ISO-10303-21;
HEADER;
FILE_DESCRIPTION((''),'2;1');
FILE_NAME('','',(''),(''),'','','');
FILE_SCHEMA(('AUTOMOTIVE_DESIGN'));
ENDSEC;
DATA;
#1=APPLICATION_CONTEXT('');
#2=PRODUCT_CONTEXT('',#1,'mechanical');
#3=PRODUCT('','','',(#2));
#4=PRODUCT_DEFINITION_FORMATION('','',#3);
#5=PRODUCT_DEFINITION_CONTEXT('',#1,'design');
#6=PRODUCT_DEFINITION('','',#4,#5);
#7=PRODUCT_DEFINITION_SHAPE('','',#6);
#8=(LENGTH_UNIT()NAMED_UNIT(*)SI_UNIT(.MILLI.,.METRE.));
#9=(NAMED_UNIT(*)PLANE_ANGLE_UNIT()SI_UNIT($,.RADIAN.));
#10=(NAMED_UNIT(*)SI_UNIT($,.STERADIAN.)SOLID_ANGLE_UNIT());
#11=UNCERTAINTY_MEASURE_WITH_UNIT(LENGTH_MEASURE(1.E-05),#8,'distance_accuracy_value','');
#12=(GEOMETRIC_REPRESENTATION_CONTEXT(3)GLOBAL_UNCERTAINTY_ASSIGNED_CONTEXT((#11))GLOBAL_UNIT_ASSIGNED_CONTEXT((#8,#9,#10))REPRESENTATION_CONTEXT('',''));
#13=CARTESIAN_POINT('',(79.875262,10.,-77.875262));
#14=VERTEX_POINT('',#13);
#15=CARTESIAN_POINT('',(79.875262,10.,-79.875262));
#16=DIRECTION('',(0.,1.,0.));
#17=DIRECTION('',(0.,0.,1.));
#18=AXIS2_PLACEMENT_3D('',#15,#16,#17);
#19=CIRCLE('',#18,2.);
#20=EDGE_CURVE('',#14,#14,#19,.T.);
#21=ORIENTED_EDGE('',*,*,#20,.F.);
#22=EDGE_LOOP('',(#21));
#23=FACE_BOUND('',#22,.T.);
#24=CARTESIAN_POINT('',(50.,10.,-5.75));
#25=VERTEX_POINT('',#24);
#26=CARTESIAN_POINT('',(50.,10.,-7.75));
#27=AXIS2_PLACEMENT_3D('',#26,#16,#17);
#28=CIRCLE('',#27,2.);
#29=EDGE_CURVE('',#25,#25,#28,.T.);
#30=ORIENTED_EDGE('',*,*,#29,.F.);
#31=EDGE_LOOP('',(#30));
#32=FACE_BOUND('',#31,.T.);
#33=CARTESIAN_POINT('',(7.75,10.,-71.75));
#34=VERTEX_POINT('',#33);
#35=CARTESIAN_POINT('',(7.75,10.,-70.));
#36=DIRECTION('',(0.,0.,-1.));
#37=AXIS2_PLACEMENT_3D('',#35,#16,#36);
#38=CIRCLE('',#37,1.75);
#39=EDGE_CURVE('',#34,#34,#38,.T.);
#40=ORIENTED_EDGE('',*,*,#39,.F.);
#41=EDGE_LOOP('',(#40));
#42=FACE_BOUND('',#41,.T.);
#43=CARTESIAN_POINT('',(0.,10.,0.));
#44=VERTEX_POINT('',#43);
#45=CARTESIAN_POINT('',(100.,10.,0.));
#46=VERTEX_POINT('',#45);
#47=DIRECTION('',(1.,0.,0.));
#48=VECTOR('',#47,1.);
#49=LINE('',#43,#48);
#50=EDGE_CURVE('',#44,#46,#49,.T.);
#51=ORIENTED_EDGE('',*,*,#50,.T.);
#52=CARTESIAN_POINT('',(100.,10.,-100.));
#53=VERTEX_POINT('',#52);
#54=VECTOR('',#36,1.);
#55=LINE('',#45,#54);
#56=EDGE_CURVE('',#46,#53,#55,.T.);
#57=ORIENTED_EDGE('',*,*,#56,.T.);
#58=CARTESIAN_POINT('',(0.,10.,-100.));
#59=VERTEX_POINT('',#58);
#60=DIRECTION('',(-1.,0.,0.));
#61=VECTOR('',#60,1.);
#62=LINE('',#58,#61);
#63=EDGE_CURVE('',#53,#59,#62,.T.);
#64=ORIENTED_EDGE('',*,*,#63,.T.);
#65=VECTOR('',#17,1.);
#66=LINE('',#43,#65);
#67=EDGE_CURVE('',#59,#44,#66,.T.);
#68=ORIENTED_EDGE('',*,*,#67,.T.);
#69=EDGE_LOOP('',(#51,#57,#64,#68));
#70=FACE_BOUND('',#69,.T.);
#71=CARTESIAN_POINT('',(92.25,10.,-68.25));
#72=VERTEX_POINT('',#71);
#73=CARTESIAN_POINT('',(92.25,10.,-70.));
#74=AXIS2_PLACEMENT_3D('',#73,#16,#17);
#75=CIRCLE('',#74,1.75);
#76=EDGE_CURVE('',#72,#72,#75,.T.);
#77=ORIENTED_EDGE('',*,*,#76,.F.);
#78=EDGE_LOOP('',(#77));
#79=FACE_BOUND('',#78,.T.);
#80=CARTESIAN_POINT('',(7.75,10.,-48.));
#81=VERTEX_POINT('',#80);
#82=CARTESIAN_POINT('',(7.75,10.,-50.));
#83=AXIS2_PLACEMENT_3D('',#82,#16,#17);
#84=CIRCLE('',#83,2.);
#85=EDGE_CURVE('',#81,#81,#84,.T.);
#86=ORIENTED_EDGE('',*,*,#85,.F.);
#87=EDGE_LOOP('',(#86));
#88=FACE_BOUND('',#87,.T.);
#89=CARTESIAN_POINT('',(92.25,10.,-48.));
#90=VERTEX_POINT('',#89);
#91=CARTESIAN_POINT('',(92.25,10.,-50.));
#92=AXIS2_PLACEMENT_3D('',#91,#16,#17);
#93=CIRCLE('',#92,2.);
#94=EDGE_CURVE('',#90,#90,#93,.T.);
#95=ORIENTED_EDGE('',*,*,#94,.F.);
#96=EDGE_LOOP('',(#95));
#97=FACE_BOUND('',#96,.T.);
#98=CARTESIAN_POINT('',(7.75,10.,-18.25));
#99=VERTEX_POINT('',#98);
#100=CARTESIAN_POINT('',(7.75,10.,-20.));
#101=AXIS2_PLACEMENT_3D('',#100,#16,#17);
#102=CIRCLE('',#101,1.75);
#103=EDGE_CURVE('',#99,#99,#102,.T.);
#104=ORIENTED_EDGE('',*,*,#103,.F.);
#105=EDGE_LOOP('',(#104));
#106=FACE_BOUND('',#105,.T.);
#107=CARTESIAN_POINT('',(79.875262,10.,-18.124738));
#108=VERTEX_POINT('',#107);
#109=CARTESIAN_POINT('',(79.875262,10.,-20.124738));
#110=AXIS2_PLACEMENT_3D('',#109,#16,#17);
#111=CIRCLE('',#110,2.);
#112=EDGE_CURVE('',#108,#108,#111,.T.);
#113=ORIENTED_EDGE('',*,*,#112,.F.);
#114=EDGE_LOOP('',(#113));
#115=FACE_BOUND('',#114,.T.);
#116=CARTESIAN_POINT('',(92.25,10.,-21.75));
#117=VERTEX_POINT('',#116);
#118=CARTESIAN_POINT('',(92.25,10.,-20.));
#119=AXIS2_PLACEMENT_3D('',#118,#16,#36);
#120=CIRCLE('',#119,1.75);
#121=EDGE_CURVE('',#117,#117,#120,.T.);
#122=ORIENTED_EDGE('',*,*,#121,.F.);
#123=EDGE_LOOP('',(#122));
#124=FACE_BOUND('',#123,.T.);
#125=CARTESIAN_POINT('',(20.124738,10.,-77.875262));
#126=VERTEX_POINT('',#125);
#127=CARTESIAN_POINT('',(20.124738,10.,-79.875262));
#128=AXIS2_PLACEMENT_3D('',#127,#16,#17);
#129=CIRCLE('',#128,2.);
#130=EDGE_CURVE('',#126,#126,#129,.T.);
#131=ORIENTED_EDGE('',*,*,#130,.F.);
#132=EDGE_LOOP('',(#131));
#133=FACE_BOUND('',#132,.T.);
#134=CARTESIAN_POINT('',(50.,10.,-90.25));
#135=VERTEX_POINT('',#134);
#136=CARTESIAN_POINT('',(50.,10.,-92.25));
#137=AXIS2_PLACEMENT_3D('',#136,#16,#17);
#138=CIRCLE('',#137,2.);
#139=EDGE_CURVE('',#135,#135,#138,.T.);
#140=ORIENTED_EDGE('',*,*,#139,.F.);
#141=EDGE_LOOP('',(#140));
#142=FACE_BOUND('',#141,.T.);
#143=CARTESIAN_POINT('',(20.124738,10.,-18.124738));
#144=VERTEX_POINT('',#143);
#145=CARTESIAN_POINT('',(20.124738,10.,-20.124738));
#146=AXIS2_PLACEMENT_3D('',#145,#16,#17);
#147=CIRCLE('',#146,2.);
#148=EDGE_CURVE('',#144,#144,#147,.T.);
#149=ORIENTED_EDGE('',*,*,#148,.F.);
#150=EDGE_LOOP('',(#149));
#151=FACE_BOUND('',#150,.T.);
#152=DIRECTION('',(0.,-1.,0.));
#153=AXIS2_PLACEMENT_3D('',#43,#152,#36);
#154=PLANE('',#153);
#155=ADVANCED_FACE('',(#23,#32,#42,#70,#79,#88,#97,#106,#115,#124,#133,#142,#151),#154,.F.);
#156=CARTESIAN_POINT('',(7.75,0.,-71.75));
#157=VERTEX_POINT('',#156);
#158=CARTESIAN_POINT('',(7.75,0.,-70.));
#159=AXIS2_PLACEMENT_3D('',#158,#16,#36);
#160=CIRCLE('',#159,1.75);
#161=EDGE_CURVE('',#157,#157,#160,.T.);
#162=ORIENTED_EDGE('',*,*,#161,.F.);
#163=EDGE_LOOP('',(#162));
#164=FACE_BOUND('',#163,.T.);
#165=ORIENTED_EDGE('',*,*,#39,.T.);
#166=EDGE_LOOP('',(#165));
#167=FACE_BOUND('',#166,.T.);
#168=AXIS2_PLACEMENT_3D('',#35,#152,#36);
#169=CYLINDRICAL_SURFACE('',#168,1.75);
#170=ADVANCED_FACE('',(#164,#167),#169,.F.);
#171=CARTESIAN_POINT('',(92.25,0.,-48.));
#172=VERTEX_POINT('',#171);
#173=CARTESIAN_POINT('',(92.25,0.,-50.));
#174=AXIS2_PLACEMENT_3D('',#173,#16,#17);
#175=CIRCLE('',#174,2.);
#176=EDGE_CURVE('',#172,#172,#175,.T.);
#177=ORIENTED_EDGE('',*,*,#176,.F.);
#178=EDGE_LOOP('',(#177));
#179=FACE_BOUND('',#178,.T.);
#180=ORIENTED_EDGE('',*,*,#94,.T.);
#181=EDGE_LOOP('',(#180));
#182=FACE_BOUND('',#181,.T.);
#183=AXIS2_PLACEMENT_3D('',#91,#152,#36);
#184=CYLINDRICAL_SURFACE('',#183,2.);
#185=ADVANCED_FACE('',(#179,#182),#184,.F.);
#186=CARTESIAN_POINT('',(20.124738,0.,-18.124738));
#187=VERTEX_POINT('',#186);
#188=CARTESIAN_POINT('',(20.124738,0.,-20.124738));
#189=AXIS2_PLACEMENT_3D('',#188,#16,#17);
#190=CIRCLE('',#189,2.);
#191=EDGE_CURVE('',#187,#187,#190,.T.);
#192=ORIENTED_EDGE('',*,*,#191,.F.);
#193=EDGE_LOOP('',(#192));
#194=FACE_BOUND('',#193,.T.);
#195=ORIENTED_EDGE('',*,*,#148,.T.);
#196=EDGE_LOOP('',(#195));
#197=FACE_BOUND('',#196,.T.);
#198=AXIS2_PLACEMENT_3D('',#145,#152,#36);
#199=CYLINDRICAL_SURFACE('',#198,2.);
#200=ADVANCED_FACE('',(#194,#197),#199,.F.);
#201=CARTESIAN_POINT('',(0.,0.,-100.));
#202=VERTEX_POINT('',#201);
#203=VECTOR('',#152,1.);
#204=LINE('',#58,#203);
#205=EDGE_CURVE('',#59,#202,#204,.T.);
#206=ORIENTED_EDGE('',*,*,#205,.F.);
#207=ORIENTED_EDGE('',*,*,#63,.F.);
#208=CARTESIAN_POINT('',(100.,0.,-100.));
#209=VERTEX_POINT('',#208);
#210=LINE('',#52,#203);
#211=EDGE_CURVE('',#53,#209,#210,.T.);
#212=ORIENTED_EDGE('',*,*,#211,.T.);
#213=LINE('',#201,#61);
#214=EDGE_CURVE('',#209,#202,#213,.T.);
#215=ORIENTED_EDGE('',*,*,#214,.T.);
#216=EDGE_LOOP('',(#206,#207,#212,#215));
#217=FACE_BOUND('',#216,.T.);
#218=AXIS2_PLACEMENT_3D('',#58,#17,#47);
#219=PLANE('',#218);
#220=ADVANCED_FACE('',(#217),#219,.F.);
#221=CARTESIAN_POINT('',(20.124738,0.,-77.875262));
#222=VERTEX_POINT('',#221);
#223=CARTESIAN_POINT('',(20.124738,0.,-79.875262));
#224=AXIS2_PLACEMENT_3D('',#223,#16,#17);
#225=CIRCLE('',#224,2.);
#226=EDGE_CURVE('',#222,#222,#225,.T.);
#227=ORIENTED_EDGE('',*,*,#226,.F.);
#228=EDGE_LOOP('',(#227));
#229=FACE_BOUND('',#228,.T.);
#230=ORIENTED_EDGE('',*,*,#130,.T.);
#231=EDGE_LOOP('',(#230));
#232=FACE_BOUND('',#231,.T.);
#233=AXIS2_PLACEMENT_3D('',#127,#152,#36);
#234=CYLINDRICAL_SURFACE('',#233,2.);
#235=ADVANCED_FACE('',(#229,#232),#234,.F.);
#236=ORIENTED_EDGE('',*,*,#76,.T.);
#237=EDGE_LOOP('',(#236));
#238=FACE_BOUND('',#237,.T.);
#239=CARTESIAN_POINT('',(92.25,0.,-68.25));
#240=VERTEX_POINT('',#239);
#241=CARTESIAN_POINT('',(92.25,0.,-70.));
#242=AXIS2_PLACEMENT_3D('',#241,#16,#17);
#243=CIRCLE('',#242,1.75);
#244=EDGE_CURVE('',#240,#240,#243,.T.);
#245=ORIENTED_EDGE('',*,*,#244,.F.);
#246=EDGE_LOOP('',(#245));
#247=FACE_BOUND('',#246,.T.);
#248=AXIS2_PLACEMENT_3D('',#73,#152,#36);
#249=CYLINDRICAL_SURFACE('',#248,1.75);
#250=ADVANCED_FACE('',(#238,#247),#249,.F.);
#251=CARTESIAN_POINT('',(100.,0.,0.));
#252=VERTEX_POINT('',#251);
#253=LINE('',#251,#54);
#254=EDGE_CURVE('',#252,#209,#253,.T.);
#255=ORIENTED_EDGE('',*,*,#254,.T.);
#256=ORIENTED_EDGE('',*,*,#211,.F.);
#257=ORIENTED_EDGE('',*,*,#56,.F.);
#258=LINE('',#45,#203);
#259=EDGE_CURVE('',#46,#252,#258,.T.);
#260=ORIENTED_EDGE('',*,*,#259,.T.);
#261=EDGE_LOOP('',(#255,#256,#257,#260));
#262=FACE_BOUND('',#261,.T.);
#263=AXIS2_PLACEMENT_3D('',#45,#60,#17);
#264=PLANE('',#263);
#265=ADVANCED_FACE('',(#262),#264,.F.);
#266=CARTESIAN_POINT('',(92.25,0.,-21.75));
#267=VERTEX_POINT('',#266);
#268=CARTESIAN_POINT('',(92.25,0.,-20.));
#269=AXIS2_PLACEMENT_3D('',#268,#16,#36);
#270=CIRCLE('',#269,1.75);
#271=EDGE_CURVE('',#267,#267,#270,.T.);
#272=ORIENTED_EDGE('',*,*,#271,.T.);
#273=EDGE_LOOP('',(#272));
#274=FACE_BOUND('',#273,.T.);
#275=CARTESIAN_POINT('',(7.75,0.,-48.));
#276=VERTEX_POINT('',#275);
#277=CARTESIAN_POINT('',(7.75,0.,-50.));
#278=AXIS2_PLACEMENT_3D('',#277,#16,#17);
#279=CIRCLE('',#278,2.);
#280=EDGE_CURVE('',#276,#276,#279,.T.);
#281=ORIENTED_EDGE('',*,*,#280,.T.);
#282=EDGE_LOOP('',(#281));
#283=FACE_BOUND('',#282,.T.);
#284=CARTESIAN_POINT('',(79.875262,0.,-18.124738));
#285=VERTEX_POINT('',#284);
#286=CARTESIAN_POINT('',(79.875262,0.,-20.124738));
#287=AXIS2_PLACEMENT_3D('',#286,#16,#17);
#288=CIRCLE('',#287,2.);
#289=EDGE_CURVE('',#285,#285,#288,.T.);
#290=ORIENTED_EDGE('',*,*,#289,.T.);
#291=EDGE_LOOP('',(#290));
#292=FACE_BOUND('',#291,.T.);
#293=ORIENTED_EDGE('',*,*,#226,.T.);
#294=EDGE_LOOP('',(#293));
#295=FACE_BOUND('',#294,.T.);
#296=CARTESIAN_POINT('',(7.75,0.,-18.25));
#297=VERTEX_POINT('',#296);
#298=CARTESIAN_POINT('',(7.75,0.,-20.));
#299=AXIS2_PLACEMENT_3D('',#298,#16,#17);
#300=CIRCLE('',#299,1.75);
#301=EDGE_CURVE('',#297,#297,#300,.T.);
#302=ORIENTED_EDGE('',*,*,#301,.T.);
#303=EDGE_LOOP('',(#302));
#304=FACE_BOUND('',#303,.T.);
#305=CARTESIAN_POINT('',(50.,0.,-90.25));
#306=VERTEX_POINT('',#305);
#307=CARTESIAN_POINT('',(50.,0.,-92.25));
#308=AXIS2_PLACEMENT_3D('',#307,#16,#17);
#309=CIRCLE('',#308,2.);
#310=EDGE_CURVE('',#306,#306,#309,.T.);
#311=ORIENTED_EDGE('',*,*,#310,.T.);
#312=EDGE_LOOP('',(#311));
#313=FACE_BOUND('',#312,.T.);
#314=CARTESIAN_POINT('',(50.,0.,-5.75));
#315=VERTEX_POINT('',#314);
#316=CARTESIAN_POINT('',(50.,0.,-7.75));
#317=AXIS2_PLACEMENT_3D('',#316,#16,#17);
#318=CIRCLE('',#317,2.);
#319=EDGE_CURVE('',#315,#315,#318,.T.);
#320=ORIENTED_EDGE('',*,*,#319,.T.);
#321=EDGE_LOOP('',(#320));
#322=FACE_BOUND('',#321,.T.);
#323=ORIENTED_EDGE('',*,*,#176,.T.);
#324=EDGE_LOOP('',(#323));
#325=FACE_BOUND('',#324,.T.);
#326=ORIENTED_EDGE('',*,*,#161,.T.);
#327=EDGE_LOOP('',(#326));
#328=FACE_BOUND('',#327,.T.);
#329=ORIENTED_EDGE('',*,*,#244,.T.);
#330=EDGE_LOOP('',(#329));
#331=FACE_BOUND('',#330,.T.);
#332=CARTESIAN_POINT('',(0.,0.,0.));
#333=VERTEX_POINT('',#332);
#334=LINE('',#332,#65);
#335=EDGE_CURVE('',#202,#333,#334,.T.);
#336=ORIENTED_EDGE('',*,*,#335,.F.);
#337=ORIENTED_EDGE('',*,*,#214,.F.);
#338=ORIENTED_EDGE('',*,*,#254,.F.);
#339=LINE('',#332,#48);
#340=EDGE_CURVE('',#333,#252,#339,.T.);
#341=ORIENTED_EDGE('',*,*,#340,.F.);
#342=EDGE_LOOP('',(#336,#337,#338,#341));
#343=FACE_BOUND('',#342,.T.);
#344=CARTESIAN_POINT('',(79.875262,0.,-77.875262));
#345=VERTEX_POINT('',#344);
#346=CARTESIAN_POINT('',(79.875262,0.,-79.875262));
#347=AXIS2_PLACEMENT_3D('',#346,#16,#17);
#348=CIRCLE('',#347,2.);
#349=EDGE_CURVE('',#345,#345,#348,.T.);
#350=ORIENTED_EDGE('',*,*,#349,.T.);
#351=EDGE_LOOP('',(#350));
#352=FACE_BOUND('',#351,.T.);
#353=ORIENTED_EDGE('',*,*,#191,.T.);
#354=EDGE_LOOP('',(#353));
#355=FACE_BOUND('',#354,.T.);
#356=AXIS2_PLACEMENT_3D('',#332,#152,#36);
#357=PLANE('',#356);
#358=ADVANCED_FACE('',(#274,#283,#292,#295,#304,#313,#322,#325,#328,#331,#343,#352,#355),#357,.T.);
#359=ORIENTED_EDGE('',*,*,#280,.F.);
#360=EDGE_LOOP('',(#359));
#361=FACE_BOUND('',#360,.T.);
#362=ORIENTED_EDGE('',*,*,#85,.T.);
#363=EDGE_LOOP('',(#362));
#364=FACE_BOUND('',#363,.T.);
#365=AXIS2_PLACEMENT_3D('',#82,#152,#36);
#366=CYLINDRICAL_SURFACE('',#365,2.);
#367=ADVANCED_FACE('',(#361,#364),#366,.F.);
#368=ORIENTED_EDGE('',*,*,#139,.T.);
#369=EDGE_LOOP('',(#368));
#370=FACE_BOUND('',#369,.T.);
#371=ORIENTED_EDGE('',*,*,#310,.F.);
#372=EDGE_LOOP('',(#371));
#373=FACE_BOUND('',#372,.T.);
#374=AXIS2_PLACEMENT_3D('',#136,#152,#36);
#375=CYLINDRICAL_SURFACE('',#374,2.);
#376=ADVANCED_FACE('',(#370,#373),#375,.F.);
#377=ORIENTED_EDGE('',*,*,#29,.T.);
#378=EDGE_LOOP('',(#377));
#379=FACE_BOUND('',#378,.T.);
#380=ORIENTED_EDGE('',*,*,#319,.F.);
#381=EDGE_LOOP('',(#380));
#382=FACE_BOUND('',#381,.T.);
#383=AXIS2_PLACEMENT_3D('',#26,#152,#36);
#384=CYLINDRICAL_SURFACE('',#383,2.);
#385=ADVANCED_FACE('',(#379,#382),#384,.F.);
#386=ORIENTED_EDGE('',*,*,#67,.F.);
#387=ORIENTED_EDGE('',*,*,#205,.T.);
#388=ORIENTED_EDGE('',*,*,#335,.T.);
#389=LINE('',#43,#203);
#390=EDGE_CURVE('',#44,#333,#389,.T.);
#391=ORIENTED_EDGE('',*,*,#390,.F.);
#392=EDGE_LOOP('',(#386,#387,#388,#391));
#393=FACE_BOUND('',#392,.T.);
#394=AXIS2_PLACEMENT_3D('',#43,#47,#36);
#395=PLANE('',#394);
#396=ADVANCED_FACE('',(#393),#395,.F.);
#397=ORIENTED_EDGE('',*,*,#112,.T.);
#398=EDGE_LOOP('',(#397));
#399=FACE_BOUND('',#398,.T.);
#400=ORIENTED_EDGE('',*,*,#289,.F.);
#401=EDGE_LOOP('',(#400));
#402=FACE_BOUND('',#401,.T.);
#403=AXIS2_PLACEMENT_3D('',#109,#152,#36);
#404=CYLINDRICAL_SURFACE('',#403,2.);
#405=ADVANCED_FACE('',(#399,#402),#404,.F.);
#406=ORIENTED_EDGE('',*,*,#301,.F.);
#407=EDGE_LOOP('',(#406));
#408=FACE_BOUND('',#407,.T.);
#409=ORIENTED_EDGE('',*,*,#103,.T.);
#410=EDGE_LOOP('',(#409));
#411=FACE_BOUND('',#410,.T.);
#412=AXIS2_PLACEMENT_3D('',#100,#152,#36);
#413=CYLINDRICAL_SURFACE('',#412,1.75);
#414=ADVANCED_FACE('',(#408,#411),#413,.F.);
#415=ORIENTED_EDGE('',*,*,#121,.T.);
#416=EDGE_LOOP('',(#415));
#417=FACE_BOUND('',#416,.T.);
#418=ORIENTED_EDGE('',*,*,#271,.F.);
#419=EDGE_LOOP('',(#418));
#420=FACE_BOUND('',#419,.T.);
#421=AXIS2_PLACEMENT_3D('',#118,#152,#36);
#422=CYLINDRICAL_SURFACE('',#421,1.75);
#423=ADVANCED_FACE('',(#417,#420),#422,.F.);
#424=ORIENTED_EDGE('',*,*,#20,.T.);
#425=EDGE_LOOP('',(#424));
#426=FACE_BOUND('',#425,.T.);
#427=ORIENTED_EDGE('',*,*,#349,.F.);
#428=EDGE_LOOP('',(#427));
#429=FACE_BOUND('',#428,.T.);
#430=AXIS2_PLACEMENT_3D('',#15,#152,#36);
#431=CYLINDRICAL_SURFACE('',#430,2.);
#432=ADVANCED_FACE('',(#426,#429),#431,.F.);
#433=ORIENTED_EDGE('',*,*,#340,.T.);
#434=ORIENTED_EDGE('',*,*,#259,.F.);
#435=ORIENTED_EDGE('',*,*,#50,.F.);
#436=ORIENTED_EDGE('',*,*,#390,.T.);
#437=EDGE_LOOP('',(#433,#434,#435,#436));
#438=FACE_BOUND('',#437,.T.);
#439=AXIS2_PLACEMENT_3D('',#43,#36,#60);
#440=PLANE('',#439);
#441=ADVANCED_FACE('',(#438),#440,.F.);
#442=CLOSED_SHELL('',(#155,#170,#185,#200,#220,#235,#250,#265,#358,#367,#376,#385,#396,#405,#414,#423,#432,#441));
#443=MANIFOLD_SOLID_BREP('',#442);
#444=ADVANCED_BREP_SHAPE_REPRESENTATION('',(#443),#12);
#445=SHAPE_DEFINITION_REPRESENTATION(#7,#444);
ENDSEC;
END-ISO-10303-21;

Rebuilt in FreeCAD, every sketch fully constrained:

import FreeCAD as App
import Part
import Sketcher

V = App.Vector

doc = App.newDocument("Part")
body = doc.addObject("PartDesign::Body", "Body")

# Sketch on XZ plane
sketch1 = body.newObject("Sketcher::SketchObject", "Sketch")
sketch1.AttachmentSupport = (doc.getObject("XZ_Plane"), [""])
sketch1.MapMode = "FlatFace"
sketch1.addGeometry(Part.LineSegment(V(0, -100, 0), V(0, 0, 0)), False)
sketch1.addGeometry(Part.LineSegment(V(0, 0, 0), V(100, 0, 0)), False)
sketch1.addGeometry(Part.LineSegment(V(100, 0, 0), V(100, -100, 0)), False)
sketch1.addGeometry(Part.LineSegment(V(100, -100, 0), V(0, -100, 0)), False)
sketch1.addGeometry(Part.Circle(V(7.8, -20, 0), V(0, 0, 1), 1.8), False)
sketch1.addGeometry(Part.Circle(V(20.1, -20.1, 0), V(0, 0, 1), 2), False)
sketch1.addGeometry(Part.Circle(V(50, -7.8, 0), V(0, 0, 1), 2), False)
sketch1.addGeometry(Part.Circle(V(79.9, -20.1, 0), V(0, 0, 1), 2), False)
sketch1.addGeometry(Part.Circle(V(92.2, -20, 0), V(0, 0, 1), 1.8), False)
sketch1.addGeometry(Part.Circle(V(7.8, -50, 0), V(0, 0, 1), 2), False)
sketch1.addGeometry(Part.Circle(V(7.8, -70, 0), V(0, 0, 1), 1.8), False)
sketch1.addGeometry(Part.Circle(V(20.1, -79.9, 0), V(0, 0, 1), 2), False)
sketch1.addGeometry(Part.Circle(V(92.2, -50, 0), V(0, 0, 1), 2), False)
sketch1.addGeometry(Part.Circle(V(92.2, -70, 0), V(0, 0, 1), 1.8), False)
sketch1.addGeometry(Part.Circle(V(50, -92.2, 0), V(0, 0, 1), 2), False)
sketch1.addGeometry(Part.Circle(V(79.9, -79.9, 0), V(0, 0, 1), 2), False)
sketch1.addConstraint(Sketcher.Constraint("Coincident", 0, 2, 1, 1))
sketch1.addConstraint(Sketcher.Constraint("Coincident", 1, 2, 2, 1))
sketch1.addConstraint(Sketcher.Constraint("Coincident", 2, 2, 3, 1))
sketch1.addConstraint(Sketcher.Constraint("Coincident", 3, 2, 0, 1))
sketch1.addConstraint(Sketcher.Constraint("Vertical", 0))
sketch1.addConstraint(Sketcher.Constraint("Horizontal", 1))
sketch1.addConstraint(Sketcher.Constraint("Vertical", 2))
sketch1.addConstraint(Sketcher.Constraint("Horizontal", 3))
sketch1.addConstraint(Sketcher.Constraint("Coincident", 0, 2, -1, 1))
sketch1.addConstraint(Sketcher.Constraint("Equal", 5, 6))
sketch1.addConstraint(Sketcher.Constraint("Equal", 6, 7))
sketch1.addConstraint(Sketcher.Constraint("Equal", 4, 8))
sketch1.addConstraint(Sketcher.Constraint("Equal", 7, 9))
sketch1.addConstraint(Sketcher.Constraint("Equal", 8, 10))
sketch1.addConstraint(Sketcher.Constraint("Equal", 9, 11))
sketch1.addConstraint(Sketcher.Constraint("Equal", 11, 12))
sketch1.addConstraint(Sketcher.Constraint("Equal", 10, 13))
sketch1.addConstraint(Sketcher.Constraint("Equal", 12, 14))
sketch1.addConstraint(Sketcher.Constraint("Equal", 14, 15))
sketch1.addConstraint(Sketcher.Constraint("Horizontal", 5, 3, 7, 3))
sketch1.addConstraint(Sketcher.Constraint("Horizontal", 4, 3, 8, 3))
sketch1.addConstraint(Sketcher.Constraint("Horizontal", 9, 3, 12, 3))
sketch1.addConstraint(Sketcher.Constraint("Horizontal", 10, 3, 13, 3))
sketch1.addConstraint(Sketcher.Constraint("Horizontal", 11, 3, 15, 3))
sketch1.addConstraint(Sketcher.Constraint("Vertical", 4, 3, 9, 3))
sketch1.addConstraint(Sketcher.Constraint("Vertical", 9, 3, 10, 3))
sketch1.addConstraint(Sketcher.Constraint("Vertical", 5, 3, 11, 3))
sketch1.addConstraint(Sketcher.Constraint("Vertical", 8, 3, 12, 3))
sketch1.addConstraint(Sketcher.Constraint("Vertical", 12, 3, 13, 3))
sketch1.addConstraint(Sketcher.Constraint("Vertical", 6, 3, 14, 3))
sketch1.addConstraint(Sketcher.Constraint("Vertical", 7, 3, 15, 3))
sketch1.addConstraint(Sketcher.Constraint("Equal", 3, 0))
sketch1.addConstraint(Sketcher.Constraint("Diameter", 5, 4.0))
sketch1.addConstraint(Sketcher.Constraint("Diameter", 4, 3.5))
sketch1.addConstraint(Sketcher.Constraint("DistanceX", 1, 1, 1, 2, 100.0))
sketch1.addConstraint(Sketcher.Constraint("DistanceY", 4, 3, -1, 1, 20.0))
sketch1.addConstraint(Sketcher.Constraint("DistanceX", -1, 1, 6, 3, 50.0))
sketch1.addConstraint(Sketcher.Constraint("DistanceY", 9, 3, -1, 1, 50.0))
sketch1.addConstraint(Sketcher.Constraint("DistanceY", 10, 3, -1, 1, 70.0))
sketch1.addConstraint(Sketcher.Constraint("DistanceX", 4, 3, 8, 3, 84.5))
sketch1.addConstraint(Sketcher.Constraint("DistanceX", -1, 1, 4, 3, 7.75))
sketch1.addConstraint(Sketcher.Constraint("DistanceY", 6, 3, -1, 1, 7.75))
sketch1.addConstraint(Sketcher.Constraint("DistanceY", 14, 3, -1, 1, 92.25))
sketch1.addConstraint(Sketcher.Constraint("DistanceX", -1, 1, 5, 3, 20.124738))
sketch1.addConstraint(Sketcher.Constraint("DistanceY", 5, 3, -1, 1, 20.124738))
sketch1.addConstraint(Sketcher.Constraint("DistanceX", -1, 1, 7, 3, 79.875262))
sketch1.addConstraint(Sketcher.Constraint("DistanceY", 11, 3, -1, 1, 79.875262))
pad1 = body.newObject("PartDesign::Pad", "Pad")
pad1.Profile = sketch1
pad1.Length = 10
pad1.Reversed = True

doc.recompute()
